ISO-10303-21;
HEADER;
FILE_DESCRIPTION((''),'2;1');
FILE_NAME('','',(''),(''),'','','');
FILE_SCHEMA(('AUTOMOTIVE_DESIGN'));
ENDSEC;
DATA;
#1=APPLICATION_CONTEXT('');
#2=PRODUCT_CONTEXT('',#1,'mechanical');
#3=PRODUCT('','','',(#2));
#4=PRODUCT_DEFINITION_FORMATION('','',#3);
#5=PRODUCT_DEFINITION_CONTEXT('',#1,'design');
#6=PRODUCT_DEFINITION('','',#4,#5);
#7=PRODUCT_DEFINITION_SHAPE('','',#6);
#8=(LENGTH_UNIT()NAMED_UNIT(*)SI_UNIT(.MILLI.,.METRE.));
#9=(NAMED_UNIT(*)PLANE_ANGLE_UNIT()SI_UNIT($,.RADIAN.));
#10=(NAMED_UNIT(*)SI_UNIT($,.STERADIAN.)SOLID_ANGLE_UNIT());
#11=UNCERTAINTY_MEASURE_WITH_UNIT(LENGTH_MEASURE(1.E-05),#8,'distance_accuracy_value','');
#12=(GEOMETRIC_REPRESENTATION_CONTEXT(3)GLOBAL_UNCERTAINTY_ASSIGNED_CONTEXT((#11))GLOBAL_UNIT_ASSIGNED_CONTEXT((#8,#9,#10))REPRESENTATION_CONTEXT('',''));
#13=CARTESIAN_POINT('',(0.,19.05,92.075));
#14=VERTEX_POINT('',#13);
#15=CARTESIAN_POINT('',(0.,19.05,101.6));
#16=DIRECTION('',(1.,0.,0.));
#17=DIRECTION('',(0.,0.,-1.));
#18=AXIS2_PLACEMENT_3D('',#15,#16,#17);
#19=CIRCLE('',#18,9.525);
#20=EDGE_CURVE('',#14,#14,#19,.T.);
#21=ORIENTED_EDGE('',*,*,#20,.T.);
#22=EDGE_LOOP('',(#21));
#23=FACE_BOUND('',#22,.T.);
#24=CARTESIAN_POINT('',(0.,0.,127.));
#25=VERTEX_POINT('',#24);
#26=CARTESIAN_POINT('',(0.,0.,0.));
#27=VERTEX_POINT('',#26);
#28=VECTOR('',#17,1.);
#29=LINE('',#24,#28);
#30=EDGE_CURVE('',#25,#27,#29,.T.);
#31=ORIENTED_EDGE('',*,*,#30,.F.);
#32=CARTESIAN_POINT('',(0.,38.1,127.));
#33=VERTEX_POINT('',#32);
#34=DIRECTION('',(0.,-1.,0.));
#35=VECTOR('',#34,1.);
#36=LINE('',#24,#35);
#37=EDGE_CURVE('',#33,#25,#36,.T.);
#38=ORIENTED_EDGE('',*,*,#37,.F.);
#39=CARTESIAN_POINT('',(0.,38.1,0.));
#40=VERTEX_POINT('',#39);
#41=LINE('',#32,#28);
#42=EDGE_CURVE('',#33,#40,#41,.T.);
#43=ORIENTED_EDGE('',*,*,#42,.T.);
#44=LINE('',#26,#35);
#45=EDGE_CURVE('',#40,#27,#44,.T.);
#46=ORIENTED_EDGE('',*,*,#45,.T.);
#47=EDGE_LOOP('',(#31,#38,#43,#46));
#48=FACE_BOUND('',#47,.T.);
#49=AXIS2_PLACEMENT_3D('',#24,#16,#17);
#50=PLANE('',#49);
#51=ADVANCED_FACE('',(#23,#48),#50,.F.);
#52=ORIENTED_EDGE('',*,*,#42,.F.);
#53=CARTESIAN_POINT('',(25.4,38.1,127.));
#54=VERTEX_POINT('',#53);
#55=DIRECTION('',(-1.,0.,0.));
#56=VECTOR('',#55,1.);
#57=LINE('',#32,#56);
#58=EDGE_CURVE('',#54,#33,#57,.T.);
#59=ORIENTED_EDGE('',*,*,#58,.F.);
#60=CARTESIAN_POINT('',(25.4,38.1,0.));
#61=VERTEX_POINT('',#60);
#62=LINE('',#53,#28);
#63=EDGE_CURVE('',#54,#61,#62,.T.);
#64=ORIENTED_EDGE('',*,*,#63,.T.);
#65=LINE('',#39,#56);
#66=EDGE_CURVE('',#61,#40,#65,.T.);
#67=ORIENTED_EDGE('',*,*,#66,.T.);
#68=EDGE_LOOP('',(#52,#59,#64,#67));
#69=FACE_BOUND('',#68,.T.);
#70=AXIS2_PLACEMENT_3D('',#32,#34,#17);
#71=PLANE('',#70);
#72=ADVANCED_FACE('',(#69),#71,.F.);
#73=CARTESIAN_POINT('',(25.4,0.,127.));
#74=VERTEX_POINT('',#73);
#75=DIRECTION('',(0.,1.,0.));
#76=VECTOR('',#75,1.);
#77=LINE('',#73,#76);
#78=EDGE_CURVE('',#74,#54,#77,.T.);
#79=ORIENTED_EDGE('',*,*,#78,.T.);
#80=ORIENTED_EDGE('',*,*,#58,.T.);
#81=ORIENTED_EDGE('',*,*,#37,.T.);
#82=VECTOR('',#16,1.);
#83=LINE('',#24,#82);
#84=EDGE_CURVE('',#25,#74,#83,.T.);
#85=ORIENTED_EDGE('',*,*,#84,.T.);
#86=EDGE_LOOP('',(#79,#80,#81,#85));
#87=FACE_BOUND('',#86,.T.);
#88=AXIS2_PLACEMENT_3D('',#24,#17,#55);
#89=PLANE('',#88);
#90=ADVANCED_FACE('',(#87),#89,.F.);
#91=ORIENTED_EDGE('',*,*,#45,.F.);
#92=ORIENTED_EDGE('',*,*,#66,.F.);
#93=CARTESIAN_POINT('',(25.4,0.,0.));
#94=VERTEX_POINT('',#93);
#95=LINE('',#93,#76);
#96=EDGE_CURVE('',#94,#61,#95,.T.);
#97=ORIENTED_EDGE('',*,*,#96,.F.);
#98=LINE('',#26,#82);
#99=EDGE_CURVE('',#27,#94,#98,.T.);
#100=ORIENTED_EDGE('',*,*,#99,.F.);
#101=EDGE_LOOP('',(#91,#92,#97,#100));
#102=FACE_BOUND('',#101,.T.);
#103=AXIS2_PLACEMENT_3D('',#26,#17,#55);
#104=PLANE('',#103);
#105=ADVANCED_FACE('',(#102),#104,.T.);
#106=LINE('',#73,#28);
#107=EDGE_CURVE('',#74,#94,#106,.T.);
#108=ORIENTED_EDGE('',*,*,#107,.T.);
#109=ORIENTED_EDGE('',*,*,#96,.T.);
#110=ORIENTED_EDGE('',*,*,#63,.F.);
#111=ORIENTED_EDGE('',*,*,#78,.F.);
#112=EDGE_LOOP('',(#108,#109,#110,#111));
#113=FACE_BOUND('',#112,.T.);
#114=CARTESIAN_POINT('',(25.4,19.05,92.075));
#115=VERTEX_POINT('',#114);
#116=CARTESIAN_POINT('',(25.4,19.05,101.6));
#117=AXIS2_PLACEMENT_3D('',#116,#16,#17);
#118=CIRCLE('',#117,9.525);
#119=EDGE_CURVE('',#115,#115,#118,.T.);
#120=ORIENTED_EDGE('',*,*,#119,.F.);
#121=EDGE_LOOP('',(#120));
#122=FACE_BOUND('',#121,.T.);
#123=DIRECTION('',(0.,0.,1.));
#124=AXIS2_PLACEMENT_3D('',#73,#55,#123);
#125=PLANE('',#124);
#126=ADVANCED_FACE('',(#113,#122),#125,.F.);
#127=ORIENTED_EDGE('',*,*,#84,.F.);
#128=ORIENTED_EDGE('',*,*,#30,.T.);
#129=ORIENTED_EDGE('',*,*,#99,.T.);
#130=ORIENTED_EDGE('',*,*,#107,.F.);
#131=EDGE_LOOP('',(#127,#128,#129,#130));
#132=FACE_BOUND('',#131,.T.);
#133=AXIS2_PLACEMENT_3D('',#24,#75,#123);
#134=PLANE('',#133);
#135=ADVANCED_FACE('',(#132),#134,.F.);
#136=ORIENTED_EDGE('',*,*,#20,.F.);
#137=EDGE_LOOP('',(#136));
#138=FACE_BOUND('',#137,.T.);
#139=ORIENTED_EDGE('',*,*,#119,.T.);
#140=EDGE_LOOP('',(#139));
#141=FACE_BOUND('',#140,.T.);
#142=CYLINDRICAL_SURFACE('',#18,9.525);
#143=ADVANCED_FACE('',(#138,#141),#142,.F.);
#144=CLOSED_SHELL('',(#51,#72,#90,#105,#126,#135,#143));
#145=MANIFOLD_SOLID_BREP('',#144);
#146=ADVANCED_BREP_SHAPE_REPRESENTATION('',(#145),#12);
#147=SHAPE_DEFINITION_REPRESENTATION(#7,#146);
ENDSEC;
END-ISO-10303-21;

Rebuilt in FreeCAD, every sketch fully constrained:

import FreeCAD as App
import Part
import Sketcher
Q = App.Units.Quantity


def add_polygon(sketch, points):
    """Adds a closed chain of lines whose ends are joined by coincident constraints."""
    first, n = sketch.GeometryCount, len(points)
    for a, b in zip(points, points[1:] + points[:1]):
        sketch.addGeometry(Part.LineSegment(App.Vector(*a, 0), App.Vector(*b, 0)), False)
    for i in range(n):
        sketch.addConstraint(Sketcher.Constraint("Coincident", first + i, 2, first + (i + 1) % n, 1))

doc = App.newDocument("Part")
params = doc.addObject("Spreadsheet::Sheet", "Params")
for row, (alias, value) in enumerate([
    ("sketch1_width", "1 in"),
    ("sketch1_height", "1.5 in"),
    ("pad1_length", "5 in"),
    ("sketch2_diameter", "0.75 in"),
], start=1):
    params.set(f"A{row}", alias)
    params.set(f"B{row}", "=" + value)
    params.setAlias(f"B{row}", alias)

body = doc.addObject("PartDesign::Body", "Body")

# Sketch on XY plane
sketch1 = doc.addObject("Sketcher::SketchObject", "Sketch")
body.addObject(sketch1)
sketch1.AttachmentSupport = (doc.XY_Plane, [""])
sketch1.MapMode = "FlatFace"
add_polygon(sketch1, [(0, 38), (0, 0), (25, 0), (25, 38)])  # lines 0-3
sketch1.addConstraint(Sketcher.Constraint("Vertical", 0))
sketch1.addConstraint(Sketcher.Constraint("Horizontal", 1))
sketch1.addConstraint(Sketcher.Constraint("Vertical", 2))
sketch1.addConstraint(Sketcher.Constraint("Horizontal", 3))
sketch1.addConstraint(Sketcher.Constraint("Coincident", 0, 2, -1, 1))
sketch1.addConstraint(Sketcher.Constraint("DistanceX", 1, 1, 1, 2, Q("1 in")))
sketch1.addConstraint(Sketcher.Constraint("DistanceY", 0, 2, 0, 1, Q("1.5 in")))
sketch1.setExpression("Constraints[9]", "Params.sketch1_width")
sketch1.setExpression("Constraints[10]", "Params.sketch1_height")
pad1 = doc.addObject("PartDesign::Pad", "Pad")
body.addObject(pad1)
pad1.Profile = sketch1
pad1.setExpression("Length", "Params.pad1_length")

# Sketch on YZ plane
sketch2 = doc.addObject("Sketcher::SketchObject", "Sketch001")
body.addObject(sketch2)
sketch2.AttachmentSupport = (doc.YZ_Plane, [""])
sketch2.MapMode = "FlatFace"
sketch2.AttachmentOffset = App.Placement(App.Vector(0, 0, 1 * 25.4), App.Rotation())
sketch2.addGeometry(Part.Circle(App.Vector(19, 102, 0), App.Vector(0, 0, 1), 10), False)
sketch2.addConstraint(Sketcher.Constraint("Diameter", 0, Q("0.75 in")))
sketch2.addConstraint(Sketcher.Constraint("DistanceY", -1, 1, 0, 3, Q("4 in")))
sketch2.addConstraint(Sketcher.Constraint("DistanceX", -1, 1, 0, 3, Q("0.75 in")))
sketch2.setExpression("Constraints[0]", "Params.sketch2_diameter")
pocket1 = doc.addObject("PartDesign::Pocket", "Pocket")
body.addObject(pocket1)
pocket1.Profile = sketch2
pocket1.Type = "ThroughAll"

doc.recompute()
